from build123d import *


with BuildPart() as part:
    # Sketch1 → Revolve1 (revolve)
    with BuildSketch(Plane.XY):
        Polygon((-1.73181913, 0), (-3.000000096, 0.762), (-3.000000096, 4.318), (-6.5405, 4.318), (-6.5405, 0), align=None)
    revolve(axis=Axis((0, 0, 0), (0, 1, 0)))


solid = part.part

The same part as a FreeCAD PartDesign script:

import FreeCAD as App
import Part
import Sketcher
Q = App.Units.Quantity


def add_polygon(sketch, points):
    """Adds a closed chain of lines whose ends are joined by coincident constraints."""
    first, n = sketch.GeometryCount, len(points)
    for a, b in zip(points, points[1:] + points[:1]):
        sketch.addGeometry(Part.LineSegment(App.Vector(*a, 0), App.Vector(*b, 0)), False)
    for i in range(n):
        sketch.addConstraint(Sketcher.Constraint("Coincident", first + i, 2, first + (i + 1) % n, 1))

doc = App.newDocument("Part")
body = doc.addObject("PartDesign::Body", "Body")

# Sketch on XY plane
sketch1 = doc.addObject("Sketcher::SketchObject", "Sketch")
body.addObject(sketch1)
sketch1.AttachmentSupport = (doc.XY_Plane, [""])
sketch1.MapMode = "FlatFace"
add_polygon(sketch1, [(-1.731819, 0), (-3, 0.762), (-3, 4.318), (-6.5405, 4.318), (-6.5405, 0)])  # lines 0-4
sketch1.addConstraint(Sketcher.Constraint("Vertical", 1))
sketch1.addConstraint(Sketcher.Constraint("Horizontal", 2))
sketch1.addConstraint(Sketcher.Constraint("Vertical", 3))
sketch1.addConstraint(Sketcher.Constraint("Horizontal", 4))
sketch1.addConstraint(Sketcher.Constraint("PointOnObject", 3, 2, -1))
sketch1.addConstraint(Sketcher.Constraint("Angle", 0, Q("149 deg")))
sketch1.addConstraint(Sketcher.Constraint("DistanceY", 1, 1, 1, 2, Q("0.14 in")))
sketch1.addConstraint(Sketcher.Constraint("DistanceY", 3, 2, 3, 1, Q("0.17 in")))
sketch1.addConstraint(Sketcher.Constraint("DistanceX", 2, 2, 2, 1, Q("3.5405 mm")))
sketch1.addConstraint(Sketcher.Constraint("DistanceX", 2, 2, -1, 1, Q("0.2575 in")))
revolution = doc.addObject("PartDesign::Revolution", "Revolution")
body.addObject(revolution)
revolution.Profile = sketch1
revolution.ReferenceAxis = (sketch1, ["V_Axis"])
revolution.Angle = 360

doc.recompute()
